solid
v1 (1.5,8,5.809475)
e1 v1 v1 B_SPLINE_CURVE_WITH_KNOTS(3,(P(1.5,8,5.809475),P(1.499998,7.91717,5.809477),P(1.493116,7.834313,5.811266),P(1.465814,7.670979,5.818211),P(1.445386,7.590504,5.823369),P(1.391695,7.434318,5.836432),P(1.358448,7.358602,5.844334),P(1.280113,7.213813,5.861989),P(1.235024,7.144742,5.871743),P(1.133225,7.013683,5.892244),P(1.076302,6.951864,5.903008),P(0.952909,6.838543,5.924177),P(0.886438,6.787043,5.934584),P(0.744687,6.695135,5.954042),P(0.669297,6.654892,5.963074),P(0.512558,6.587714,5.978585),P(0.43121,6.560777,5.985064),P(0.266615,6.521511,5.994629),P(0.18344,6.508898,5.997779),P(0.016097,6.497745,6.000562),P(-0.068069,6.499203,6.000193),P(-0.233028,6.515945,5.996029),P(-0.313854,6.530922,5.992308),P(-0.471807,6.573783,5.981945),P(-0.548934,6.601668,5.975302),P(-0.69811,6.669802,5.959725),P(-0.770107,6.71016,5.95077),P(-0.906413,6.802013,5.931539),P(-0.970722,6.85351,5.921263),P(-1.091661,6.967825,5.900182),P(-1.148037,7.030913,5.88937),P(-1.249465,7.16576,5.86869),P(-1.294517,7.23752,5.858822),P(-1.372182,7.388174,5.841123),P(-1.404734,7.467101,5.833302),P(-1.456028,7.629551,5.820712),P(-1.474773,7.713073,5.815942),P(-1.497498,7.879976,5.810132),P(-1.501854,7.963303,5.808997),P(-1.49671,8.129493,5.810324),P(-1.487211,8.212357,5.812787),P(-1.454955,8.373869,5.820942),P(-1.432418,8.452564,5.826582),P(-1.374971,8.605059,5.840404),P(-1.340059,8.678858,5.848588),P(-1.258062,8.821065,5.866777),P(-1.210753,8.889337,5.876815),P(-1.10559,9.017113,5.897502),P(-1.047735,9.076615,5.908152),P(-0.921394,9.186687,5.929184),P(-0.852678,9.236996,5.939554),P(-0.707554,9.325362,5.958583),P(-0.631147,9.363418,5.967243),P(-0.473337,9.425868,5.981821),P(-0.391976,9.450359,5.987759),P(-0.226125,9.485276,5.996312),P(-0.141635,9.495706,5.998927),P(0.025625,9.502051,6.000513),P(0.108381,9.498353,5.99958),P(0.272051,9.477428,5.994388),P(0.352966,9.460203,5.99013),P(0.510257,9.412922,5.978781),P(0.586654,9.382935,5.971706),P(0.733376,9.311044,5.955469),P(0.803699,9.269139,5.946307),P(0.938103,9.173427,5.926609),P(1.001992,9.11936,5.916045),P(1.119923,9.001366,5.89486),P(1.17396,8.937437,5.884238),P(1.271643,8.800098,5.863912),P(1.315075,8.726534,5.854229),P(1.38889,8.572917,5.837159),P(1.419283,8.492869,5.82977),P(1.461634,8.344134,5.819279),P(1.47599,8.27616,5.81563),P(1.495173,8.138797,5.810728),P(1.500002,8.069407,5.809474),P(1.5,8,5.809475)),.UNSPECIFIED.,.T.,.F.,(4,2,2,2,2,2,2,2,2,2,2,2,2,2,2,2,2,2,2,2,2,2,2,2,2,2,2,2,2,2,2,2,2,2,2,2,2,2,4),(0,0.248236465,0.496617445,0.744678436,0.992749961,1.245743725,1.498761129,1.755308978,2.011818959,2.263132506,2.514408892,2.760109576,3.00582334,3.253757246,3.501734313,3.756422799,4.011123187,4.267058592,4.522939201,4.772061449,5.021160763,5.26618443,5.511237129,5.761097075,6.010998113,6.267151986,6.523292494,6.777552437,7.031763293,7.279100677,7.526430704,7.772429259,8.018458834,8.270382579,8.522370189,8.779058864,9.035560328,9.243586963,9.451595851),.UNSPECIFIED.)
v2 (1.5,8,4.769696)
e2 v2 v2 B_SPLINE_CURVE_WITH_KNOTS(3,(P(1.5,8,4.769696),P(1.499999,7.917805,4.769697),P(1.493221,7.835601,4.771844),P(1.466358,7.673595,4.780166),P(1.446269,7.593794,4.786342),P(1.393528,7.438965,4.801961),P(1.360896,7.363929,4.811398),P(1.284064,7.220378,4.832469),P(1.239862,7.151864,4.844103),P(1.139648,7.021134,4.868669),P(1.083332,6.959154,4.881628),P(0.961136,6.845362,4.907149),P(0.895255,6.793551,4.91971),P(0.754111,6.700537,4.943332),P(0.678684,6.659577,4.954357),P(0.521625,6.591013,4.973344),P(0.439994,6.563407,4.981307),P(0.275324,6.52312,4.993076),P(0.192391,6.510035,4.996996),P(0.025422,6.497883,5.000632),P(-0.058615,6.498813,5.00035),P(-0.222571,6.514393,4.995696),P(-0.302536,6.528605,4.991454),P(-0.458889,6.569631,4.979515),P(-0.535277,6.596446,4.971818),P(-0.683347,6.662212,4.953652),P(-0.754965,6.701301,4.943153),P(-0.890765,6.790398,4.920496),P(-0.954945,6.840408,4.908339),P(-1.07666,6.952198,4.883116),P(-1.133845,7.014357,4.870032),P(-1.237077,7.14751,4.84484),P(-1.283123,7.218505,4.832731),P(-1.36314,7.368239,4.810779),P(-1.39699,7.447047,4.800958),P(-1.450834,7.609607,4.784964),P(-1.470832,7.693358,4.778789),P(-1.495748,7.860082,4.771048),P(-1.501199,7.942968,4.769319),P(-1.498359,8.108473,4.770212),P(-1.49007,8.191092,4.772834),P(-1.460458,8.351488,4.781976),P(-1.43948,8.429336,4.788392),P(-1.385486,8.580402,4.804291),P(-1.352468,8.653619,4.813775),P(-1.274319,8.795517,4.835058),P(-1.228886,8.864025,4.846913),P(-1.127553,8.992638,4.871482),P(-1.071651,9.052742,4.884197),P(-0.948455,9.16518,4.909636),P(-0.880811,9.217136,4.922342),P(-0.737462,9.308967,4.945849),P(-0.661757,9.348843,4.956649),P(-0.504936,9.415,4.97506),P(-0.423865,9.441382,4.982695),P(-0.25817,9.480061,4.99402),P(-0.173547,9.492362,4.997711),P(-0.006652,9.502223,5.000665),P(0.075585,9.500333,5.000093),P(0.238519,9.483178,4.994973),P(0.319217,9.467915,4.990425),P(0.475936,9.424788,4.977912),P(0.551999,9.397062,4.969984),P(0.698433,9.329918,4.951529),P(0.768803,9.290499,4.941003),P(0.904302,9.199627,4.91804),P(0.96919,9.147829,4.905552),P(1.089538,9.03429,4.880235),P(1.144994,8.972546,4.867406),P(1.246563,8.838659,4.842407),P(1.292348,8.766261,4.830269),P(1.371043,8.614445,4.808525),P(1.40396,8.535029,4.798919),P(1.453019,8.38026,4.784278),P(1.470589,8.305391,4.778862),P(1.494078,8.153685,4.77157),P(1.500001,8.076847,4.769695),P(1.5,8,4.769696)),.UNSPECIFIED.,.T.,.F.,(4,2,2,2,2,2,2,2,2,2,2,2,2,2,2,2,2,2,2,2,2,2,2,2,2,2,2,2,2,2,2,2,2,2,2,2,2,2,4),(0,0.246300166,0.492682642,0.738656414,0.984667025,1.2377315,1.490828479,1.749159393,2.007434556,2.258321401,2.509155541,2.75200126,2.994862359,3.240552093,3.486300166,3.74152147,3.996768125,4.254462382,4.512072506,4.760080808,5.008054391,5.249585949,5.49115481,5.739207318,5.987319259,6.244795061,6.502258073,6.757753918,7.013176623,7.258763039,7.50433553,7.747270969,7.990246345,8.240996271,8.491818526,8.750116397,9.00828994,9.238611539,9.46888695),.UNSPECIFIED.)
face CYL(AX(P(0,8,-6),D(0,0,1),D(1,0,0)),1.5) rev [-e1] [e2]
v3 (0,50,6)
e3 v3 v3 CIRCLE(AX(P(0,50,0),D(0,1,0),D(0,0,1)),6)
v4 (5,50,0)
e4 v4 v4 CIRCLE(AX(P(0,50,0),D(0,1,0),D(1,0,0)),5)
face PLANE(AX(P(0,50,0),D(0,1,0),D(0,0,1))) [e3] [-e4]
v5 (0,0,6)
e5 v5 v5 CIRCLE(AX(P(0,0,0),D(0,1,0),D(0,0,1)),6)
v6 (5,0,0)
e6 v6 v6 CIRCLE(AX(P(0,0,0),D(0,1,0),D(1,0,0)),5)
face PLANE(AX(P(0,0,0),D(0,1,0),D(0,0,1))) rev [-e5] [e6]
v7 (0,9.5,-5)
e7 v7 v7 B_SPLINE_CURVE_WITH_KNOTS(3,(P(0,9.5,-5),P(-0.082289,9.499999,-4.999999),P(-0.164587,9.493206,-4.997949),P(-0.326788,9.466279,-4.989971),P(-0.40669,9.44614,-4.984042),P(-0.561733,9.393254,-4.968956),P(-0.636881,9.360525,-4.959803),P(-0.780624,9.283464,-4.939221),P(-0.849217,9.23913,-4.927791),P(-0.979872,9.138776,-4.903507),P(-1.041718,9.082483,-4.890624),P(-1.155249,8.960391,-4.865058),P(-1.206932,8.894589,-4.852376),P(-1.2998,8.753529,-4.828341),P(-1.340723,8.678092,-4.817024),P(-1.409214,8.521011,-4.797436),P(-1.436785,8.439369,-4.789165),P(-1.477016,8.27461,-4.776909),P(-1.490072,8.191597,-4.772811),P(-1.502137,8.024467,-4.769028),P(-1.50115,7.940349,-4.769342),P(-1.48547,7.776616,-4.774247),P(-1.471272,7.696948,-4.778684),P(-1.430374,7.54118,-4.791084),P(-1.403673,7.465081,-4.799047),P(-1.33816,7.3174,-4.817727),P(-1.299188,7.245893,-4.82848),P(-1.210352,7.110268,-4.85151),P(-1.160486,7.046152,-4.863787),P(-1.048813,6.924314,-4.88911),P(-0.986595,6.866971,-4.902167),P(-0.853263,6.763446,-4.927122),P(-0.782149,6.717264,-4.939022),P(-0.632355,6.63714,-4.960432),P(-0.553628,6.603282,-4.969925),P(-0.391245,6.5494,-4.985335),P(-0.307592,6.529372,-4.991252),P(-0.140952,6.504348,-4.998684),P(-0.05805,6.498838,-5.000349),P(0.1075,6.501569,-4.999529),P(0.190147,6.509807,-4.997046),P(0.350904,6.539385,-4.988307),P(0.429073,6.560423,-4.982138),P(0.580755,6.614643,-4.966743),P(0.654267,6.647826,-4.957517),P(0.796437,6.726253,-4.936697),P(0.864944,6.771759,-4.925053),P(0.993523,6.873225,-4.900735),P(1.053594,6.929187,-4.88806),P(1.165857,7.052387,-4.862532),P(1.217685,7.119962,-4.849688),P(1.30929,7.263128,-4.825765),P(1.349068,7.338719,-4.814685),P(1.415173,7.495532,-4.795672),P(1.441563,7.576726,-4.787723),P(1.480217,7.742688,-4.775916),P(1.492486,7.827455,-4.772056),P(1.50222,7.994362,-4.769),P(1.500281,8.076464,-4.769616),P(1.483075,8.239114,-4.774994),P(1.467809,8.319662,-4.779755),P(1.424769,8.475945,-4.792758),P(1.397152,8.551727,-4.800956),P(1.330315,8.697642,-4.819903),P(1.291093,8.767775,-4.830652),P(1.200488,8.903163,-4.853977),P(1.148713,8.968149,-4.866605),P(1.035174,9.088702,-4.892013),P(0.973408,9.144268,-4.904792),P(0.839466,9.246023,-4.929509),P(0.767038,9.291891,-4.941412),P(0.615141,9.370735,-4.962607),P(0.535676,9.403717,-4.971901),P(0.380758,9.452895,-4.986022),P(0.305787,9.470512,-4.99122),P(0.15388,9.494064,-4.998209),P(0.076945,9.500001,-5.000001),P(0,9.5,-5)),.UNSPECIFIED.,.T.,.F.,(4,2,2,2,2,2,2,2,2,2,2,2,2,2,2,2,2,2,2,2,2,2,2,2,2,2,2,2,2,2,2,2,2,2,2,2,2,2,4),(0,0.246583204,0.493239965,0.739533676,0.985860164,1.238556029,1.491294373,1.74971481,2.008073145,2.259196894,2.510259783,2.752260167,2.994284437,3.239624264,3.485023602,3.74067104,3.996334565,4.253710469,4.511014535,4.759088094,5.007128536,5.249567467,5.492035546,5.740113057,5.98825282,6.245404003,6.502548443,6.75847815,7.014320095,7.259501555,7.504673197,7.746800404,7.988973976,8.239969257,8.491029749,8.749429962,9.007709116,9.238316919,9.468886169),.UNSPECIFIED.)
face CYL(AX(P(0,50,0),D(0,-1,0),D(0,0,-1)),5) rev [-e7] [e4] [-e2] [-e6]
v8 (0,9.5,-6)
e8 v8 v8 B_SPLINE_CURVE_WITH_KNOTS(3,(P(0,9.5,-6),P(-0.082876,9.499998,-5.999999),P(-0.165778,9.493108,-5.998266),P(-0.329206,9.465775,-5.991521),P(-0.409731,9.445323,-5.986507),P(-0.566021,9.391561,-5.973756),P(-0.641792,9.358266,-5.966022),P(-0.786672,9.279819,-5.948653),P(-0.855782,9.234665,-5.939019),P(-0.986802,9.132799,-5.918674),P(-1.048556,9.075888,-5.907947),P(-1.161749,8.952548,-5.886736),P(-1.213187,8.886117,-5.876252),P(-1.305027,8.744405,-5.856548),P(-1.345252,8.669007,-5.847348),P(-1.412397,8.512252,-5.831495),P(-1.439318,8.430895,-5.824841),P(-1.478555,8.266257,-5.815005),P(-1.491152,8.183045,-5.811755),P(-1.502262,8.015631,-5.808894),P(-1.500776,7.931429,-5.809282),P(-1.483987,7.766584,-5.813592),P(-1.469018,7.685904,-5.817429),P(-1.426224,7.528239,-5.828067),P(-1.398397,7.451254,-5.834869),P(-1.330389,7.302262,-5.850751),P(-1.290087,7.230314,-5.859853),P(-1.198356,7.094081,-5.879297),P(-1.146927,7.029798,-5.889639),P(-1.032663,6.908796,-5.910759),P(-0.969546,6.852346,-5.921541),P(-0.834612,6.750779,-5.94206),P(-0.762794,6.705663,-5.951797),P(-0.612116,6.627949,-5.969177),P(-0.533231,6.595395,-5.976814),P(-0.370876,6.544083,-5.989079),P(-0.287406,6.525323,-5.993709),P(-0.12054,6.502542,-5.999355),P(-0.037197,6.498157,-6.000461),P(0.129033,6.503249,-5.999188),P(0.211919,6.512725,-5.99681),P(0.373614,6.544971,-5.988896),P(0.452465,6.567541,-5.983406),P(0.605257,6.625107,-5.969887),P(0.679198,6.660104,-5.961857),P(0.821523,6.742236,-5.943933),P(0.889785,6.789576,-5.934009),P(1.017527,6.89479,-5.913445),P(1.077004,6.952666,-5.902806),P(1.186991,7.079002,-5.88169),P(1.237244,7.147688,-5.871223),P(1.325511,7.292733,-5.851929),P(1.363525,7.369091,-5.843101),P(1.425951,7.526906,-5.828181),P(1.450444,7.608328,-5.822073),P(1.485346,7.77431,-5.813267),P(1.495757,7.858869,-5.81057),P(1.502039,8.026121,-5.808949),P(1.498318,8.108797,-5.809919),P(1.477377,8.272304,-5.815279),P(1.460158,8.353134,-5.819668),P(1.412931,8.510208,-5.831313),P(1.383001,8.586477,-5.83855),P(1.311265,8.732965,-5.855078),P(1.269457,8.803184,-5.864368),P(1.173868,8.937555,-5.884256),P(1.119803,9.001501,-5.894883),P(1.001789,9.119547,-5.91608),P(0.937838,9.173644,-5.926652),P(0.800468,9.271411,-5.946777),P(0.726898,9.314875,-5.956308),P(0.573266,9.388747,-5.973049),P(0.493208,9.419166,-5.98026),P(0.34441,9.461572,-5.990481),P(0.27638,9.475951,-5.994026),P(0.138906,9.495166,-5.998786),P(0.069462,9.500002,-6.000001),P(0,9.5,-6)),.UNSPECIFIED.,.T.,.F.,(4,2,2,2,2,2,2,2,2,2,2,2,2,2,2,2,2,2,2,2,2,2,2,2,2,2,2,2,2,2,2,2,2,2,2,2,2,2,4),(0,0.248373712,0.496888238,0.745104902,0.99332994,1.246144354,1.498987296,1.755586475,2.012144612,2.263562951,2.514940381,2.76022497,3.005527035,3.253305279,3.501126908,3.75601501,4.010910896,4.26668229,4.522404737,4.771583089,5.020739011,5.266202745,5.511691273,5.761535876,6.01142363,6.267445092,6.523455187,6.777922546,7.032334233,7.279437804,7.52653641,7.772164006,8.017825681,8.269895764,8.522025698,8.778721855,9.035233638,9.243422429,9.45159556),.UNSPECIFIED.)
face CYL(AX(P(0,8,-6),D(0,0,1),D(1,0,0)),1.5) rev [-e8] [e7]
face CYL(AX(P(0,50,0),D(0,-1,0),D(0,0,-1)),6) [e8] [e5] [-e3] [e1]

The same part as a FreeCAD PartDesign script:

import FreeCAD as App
import Part
import Sketcher
from FreeCAD import Vector

doc = App.newDocument("Part")
body = doc.addObject("PartDesign::Body", "Body")

# Sketch on XZ plane
sketch1 = body.newObject("Sketcher::SketchObject", "Sketch")
sketch1.AttachmentSupport = (doc.getObject("XZ_Plane"), [""])
sketch1.MapMode = "FlatFace"
sketch1.addGeometry([
    Part.Circle(Vector(0, 0, 0), Vector(0, 0, 1), 6),
    Part.Circle(Vector(0, 0, 0), Vector(0, 0, 1), 5),
], False)
sketch1.addConstraint([
    Sketcher.Constraint("Coincident", 0, 3, -1, 1),
    Sketcher.Constraint("Coincident", 1, 3, -1, 1),
    Sketcher.Constraint("Diameter", 0, 12.0),
    Sketcher.Constraint("Diameter", 1, 10.0),
])
pad1 = body.newObject("PartDesign::Pad", "Pad")
pad1.Profile = sketch1
pad1.Length = 50
pad1.Reversed = True

# Sketch on XY plane
sketch2 = body.newObject("Sketcher::SketchObject", "Sketch001")
sketch2.AttachmentSupport = (doc.getObject("XY_Plane"), [""])
sketch2.MapMode = "FlatFace"
sketch2.addGeometry(Part.Circle(Vector(0, 8, 0), Vector(0, 0, 1), 1.5), False)
sketch2.addConstraint([
    Sketcher.Constraint("PointOnObject", 0, 3, -2),
    Sketcher.Constraint("Diameter", 0, 3.0),
    Sketcher.Constraint("DistanceY", -1, 1, 0, 3, 8.0),
])
pocket1 = body.newObject("PartDesign::Pocket", "Pocket")
pocket1.Profile = sketch2
pocket1.Type = "ThroughAll"
pocket1.Midplane = True

doc.recompute()
